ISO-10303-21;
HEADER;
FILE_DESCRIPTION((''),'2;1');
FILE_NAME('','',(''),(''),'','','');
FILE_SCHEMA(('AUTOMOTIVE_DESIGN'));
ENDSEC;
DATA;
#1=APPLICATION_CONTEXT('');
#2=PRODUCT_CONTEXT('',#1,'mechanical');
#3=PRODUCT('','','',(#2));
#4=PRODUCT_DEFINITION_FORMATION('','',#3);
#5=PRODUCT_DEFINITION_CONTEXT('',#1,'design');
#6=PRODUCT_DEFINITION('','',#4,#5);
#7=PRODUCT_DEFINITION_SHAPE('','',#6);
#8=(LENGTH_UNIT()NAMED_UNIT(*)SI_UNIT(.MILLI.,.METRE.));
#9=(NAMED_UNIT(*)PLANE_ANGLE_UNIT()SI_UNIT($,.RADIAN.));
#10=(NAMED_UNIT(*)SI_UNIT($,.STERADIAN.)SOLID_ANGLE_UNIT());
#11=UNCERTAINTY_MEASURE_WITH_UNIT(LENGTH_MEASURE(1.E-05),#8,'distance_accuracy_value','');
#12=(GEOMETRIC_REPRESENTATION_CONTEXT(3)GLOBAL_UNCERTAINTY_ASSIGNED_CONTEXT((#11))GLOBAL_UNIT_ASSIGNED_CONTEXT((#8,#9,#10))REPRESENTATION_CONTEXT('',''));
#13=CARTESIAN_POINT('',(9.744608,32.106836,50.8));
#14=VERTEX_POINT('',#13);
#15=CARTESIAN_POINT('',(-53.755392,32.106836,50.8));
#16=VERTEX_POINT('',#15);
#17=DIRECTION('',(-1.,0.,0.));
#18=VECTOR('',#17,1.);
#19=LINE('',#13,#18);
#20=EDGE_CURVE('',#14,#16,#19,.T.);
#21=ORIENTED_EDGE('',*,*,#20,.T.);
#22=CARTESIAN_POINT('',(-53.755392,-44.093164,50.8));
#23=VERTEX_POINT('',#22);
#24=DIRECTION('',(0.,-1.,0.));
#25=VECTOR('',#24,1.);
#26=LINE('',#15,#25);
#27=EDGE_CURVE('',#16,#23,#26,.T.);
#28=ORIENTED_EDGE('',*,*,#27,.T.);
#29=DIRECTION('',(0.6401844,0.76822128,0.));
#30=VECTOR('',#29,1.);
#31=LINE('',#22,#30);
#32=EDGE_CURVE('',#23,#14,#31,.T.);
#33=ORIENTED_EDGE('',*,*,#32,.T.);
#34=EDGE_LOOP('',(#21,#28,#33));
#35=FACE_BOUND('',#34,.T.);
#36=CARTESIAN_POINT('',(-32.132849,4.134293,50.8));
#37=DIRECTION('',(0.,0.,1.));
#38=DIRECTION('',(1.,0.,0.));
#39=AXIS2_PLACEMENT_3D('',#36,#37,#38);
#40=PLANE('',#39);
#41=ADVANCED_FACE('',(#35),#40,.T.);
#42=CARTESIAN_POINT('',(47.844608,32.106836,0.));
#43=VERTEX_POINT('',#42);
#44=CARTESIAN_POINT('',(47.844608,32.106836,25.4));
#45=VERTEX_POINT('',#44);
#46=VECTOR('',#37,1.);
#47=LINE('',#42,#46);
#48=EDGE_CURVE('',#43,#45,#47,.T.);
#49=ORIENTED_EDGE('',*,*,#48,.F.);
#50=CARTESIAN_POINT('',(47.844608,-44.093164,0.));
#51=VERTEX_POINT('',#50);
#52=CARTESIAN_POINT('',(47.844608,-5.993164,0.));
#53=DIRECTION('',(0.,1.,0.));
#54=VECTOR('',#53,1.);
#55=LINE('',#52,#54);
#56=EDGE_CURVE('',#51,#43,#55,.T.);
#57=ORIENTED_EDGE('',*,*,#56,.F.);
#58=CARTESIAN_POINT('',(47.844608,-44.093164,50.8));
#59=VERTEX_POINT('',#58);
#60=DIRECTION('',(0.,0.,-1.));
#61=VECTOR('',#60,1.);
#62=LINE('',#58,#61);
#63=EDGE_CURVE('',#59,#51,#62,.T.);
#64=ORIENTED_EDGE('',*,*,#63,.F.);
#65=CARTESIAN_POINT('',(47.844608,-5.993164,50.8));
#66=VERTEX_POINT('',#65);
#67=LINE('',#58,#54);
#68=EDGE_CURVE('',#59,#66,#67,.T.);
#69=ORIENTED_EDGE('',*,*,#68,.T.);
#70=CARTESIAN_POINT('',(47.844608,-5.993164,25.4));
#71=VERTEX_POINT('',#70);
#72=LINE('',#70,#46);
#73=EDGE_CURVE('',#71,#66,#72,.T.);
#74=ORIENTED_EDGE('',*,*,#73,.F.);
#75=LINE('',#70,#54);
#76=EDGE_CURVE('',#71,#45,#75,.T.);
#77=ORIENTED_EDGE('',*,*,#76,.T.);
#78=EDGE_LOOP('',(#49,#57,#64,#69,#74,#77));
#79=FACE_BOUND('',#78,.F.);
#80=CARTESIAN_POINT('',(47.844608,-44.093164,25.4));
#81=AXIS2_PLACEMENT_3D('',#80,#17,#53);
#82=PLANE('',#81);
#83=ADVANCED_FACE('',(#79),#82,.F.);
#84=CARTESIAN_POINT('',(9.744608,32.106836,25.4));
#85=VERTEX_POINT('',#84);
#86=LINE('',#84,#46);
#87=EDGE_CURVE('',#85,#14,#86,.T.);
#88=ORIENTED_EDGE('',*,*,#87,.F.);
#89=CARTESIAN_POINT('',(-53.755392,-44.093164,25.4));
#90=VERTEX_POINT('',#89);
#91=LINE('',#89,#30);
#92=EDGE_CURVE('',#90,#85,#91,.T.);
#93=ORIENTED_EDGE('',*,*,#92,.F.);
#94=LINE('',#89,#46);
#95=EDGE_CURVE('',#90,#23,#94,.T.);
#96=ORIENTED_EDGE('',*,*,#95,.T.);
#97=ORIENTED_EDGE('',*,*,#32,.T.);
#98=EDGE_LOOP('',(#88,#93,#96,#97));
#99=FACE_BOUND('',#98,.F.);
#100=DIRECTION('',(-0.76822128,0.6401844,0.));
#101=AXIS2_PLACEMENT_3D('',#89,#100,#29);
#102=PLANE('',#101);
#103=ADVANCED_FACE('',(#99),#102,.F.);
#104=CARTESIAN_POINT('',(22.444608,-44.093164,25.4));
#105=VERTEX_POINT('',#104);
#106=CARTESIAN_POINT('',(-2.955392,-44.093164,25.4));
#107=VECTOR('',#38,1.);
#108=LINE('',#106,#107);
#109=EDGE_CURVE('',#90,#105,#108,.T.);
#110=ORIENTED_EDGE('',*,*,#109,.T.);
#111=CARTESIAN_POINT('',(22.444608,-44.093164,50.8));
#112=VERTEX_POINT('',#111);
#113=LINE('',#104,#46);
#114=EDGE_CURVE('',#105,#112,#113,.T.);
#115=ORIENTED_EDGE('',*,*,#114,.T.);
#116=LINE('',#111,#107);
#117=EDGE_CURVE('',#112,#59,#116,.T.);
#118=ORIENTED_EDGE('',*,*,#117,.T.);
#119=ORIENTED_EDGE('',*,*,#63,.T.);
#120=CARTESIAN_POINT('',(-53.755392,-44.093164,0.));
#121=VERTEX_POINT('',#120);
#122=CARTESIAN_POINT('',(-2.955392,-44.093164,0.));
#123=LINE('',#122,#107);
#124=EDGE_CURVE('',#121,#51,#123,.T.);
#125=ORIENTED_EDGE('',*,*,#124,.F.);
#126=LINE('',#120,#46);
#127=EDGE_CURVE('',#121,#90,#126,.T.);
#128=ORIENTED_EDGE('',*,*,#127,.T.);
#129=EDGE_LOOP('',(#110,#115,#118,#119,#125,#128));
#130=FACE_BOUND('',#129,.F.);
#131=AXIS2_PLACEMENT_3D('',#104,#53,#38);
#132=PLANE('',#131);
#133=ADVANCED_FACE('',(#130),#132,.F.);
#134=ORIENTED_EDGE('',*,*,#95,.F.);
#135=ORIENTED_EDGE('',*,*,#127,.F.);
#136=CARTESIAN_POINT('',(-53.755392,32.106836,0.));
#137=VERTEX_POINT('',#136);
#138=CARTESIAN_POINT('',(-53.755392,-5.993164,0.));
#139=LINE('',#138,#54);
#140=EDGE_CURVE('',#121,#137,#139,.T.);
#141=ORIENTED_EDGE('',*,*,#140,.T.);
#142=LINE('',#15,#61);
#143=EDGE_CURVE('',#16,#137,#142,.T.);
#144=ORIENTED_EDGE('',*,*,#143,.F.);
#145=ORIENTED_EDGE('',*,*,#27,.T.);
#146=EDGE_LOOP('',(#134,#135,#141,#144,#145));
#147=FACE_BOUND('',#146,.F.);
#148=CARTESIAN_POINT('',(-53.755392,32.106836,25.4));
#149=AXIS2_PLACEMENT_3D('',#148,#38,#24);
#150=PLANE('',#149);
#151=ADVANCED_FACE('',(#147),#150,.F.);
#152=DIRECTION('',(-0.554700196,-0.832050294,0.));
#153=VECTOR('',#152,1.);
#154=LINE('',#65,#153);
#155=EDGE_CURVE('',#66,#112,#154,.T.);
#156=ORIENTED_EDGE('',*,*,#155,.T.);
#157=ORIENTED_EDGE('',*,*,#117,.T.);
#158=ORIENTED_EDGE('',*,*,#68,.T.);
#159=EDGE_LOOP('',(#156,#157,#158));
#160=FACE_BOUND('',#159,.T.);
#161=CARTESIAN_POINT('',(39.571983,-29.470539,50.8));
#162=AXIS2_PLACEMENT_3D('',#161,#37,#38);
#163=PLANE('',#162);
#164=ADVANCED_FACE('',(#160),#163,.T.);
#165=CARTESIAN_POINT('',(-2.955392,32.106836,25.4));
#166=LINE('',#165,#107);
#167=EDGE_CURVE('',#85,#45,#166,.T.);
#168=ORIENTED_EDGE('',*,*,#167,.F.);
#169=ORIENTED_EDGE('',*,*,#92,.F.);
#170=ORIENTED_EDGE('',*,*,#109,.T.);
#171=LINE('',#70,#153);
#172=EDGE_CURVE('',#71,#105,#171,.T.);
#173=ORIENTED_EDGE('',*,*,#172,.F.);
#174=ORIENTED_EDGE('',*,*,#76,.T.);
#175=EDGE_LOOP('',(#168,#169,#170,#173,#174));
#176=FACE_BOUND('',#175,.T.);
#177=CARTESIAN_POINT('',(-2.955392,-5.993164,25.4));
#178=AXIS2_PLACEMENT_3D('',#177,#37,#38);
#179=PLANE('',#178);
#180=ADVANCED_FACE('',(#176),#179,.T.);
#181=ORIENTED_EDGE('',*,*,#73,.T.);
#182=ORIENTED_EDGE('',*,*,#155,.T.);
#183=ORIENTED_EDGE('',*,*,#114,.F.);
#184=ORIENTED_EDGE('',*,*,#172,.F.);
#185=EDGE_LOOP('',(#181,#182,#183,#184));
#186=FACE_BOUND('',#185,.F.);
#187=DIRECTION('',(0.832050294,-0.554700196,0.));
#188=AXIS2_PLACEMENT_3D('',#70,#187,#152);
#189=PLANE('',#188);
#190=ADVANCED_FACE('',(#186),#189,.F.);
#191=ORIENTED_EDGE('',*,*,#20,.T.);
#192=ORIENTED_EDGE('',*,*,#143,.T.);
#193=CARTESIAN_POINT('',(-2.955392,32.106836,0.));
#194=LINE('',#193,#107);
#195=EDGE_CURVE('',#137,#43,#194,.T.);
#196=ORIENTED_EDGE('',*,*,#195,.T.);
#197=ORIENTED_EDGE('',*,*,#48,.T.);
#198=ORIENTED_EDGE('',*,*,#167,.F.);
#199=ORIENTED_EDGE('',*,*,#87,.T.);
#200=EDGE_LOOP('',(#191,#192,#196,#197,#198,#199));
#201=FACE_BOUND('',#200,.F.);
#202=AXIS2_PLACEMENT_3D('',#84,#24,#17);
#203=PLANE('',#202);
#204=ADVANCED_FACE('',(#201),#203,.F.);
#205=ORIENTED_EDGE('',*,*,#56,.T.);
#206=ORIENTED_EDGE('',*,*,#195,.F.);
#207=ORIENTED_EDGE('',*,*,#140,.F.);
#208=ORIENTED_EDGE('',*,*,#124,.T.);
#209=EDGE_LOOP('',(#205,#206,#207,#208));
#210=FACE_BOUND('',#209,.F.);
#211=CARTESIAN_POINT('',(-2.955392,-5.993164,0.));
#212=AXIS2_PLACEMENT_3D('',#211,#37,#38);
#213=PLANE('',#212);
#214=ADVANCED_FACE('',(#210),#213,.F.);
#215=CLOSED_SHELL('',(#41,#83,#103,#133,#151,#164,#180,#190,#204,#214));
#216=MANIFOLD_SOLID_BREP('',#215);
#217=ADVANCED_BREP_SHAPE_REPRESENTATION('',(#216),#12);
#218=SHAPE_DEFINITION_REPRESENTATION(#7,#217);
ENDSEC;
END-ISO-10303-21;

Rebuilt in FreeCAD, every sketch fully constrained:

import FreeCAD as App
import Part
import Sketcher
from FreeCAD import Vector
Q = App.Units.Quantity


def add_polygon(sketch, points):
    """Adds a closed chain of lines whose ends are joined by coincident constraints."""
    first, n = sketch.GeometryCount, len(points)
    for a, b in zip(points, points[1:] + points[:1]):
        sketch.addGeometry(Part.LineSegment(App.Vector(*a, 0), App.Vector(*b, 0)), False)
    for i in range(n):
        sketch.addConstraint(Sketcher.Constraint("Coincident", first + i, 2, first + (i + 1) % n, 1))

doc = App.newDocument("Part")
body = doc.addObject("PartDesign::Body", "Body")

# Sketch on XY plane
sketch1 = doc.addObject("Sketcher::SketchObject", "Sketch")
body.addObject(sketch1)
sketch1.AttachmentSupport = (doc.XY_Plane, [""])
sketch1.MapMode = "FlatFace"
add_polygon(sketch1, [(-53.755392, 32.106836), (-53.755392, -44.093164), (47.844608, -44.093164), (47.844608, 32.106836)])  # lines 0-3
sketch1.addConstraint([
    Sketcher.Constraint("Vertical", 0),
    Sketcher.Constraint("Horizontal", 1),
    Sketcher.Constraint("Vertical", 2),
    Sketcher.Constraint("Horizontal", 3),
    Sketcher.Constraint("DistanceX", 1, 1, 1, 2, Q("4 in")),
    Sketcher.Constraint("DistanceY", 0, 2, 0, 1, Q("3 in")),
    Sketcher.Constraint("DistanceX", 0, 2, -1, 1, 53.755392),
    Sketcher.Constraint("DistanceY", 0, 2, -1, 1, 44.093164),
])
pad1 = doc.addObject("PartDesign::Pad", "Pad")
body.addObject(pad1)
pad1.Profile = sketch1
pad1.Length = Q("1 in")

# Sketch on XY plane
sketch2 = doc.addObject("Sketcher::SketchObject", "Sketch001")
body.addObject(sketch2)
sketch2.AttachmentSupport = (doc.XY_Plane, [""])
sketch2.MapMode = "FlatFace"
sketch2.AttachmentOffset = App.Placement(Vector(0, 0, 1 * 25.4), App.Rotation())
add_polygon(sketch2, [(47.844608, -5.993164), (22.444608, -44.093164), (47.844608, -44.093164)])  # lines 0-2
sketch2.addConstraint([
    Sketcher.Constraint("Horizontal", 1),
    Sketcher.Constraint("Vertical", 2),
    Sketcher.Constraint("DistanceX", 1, 1, 1, 2, Q("1 in")),
    Sketcher.Constraint("DistanceY", 2, 1, 2, 2, Q("1.5 in")),
    Sketcher.Constraint("DistanceX", -1, 1, 0, 2, 22.444608),
    Sketcher.Constraint("DistanceY", 0, 2, -1, 1, 44.093164),
])
pad2 = doc.addObject("PartDesign::Pad", "Pad001")
body.addObject(pad2)
pad2.Profile = sketch2
pad2.Length = Q("1 in")

# Sketch on XY plane
sketch3 = doc.addObject("Sketcher::SketchObject", "Sketch002")
body.addObject(sketch3)
sketch3.AttachmentSupport = (doc.XY_Plane, [""])
sketch3.MapMode = "FlatFace"
sketch3.AttachmentOffset = App.Placement(Vector(0, 0, 1 * 25.4), App.Rotation())
add_polygon(sketch3, [(-53.755392, 32.106836), (-53.755392, -44.093164), (9.744608, 32.106836)])  # lines 0-2
sketch3.addConstraint([
    Sketcher.Constraint("Vertical", 0),
    Sketcher.Constraint("Horizontal", 2),
    Sketcher.Constraint("DistanceY", 0, 2, 0, 1, Q("3 in")),
    Sketcher.Constraint("DistanceX", 2, 2, 2, 1, Q("2.5 in")),
    Sketcher.Constraint("DistanceX", 0, 2, -1, 1, 53.755392),
    Sketcher.Constraint("DistanceY", 0, 2, -1, 1, 44.093164),
])
pad3 = doc.addObject("PartDesign::Pad", "Pad002")
body.addObject(pad3)
pad3.Profile = sketch3
pad3.Length = Q("1 in")

doc.recompute()
